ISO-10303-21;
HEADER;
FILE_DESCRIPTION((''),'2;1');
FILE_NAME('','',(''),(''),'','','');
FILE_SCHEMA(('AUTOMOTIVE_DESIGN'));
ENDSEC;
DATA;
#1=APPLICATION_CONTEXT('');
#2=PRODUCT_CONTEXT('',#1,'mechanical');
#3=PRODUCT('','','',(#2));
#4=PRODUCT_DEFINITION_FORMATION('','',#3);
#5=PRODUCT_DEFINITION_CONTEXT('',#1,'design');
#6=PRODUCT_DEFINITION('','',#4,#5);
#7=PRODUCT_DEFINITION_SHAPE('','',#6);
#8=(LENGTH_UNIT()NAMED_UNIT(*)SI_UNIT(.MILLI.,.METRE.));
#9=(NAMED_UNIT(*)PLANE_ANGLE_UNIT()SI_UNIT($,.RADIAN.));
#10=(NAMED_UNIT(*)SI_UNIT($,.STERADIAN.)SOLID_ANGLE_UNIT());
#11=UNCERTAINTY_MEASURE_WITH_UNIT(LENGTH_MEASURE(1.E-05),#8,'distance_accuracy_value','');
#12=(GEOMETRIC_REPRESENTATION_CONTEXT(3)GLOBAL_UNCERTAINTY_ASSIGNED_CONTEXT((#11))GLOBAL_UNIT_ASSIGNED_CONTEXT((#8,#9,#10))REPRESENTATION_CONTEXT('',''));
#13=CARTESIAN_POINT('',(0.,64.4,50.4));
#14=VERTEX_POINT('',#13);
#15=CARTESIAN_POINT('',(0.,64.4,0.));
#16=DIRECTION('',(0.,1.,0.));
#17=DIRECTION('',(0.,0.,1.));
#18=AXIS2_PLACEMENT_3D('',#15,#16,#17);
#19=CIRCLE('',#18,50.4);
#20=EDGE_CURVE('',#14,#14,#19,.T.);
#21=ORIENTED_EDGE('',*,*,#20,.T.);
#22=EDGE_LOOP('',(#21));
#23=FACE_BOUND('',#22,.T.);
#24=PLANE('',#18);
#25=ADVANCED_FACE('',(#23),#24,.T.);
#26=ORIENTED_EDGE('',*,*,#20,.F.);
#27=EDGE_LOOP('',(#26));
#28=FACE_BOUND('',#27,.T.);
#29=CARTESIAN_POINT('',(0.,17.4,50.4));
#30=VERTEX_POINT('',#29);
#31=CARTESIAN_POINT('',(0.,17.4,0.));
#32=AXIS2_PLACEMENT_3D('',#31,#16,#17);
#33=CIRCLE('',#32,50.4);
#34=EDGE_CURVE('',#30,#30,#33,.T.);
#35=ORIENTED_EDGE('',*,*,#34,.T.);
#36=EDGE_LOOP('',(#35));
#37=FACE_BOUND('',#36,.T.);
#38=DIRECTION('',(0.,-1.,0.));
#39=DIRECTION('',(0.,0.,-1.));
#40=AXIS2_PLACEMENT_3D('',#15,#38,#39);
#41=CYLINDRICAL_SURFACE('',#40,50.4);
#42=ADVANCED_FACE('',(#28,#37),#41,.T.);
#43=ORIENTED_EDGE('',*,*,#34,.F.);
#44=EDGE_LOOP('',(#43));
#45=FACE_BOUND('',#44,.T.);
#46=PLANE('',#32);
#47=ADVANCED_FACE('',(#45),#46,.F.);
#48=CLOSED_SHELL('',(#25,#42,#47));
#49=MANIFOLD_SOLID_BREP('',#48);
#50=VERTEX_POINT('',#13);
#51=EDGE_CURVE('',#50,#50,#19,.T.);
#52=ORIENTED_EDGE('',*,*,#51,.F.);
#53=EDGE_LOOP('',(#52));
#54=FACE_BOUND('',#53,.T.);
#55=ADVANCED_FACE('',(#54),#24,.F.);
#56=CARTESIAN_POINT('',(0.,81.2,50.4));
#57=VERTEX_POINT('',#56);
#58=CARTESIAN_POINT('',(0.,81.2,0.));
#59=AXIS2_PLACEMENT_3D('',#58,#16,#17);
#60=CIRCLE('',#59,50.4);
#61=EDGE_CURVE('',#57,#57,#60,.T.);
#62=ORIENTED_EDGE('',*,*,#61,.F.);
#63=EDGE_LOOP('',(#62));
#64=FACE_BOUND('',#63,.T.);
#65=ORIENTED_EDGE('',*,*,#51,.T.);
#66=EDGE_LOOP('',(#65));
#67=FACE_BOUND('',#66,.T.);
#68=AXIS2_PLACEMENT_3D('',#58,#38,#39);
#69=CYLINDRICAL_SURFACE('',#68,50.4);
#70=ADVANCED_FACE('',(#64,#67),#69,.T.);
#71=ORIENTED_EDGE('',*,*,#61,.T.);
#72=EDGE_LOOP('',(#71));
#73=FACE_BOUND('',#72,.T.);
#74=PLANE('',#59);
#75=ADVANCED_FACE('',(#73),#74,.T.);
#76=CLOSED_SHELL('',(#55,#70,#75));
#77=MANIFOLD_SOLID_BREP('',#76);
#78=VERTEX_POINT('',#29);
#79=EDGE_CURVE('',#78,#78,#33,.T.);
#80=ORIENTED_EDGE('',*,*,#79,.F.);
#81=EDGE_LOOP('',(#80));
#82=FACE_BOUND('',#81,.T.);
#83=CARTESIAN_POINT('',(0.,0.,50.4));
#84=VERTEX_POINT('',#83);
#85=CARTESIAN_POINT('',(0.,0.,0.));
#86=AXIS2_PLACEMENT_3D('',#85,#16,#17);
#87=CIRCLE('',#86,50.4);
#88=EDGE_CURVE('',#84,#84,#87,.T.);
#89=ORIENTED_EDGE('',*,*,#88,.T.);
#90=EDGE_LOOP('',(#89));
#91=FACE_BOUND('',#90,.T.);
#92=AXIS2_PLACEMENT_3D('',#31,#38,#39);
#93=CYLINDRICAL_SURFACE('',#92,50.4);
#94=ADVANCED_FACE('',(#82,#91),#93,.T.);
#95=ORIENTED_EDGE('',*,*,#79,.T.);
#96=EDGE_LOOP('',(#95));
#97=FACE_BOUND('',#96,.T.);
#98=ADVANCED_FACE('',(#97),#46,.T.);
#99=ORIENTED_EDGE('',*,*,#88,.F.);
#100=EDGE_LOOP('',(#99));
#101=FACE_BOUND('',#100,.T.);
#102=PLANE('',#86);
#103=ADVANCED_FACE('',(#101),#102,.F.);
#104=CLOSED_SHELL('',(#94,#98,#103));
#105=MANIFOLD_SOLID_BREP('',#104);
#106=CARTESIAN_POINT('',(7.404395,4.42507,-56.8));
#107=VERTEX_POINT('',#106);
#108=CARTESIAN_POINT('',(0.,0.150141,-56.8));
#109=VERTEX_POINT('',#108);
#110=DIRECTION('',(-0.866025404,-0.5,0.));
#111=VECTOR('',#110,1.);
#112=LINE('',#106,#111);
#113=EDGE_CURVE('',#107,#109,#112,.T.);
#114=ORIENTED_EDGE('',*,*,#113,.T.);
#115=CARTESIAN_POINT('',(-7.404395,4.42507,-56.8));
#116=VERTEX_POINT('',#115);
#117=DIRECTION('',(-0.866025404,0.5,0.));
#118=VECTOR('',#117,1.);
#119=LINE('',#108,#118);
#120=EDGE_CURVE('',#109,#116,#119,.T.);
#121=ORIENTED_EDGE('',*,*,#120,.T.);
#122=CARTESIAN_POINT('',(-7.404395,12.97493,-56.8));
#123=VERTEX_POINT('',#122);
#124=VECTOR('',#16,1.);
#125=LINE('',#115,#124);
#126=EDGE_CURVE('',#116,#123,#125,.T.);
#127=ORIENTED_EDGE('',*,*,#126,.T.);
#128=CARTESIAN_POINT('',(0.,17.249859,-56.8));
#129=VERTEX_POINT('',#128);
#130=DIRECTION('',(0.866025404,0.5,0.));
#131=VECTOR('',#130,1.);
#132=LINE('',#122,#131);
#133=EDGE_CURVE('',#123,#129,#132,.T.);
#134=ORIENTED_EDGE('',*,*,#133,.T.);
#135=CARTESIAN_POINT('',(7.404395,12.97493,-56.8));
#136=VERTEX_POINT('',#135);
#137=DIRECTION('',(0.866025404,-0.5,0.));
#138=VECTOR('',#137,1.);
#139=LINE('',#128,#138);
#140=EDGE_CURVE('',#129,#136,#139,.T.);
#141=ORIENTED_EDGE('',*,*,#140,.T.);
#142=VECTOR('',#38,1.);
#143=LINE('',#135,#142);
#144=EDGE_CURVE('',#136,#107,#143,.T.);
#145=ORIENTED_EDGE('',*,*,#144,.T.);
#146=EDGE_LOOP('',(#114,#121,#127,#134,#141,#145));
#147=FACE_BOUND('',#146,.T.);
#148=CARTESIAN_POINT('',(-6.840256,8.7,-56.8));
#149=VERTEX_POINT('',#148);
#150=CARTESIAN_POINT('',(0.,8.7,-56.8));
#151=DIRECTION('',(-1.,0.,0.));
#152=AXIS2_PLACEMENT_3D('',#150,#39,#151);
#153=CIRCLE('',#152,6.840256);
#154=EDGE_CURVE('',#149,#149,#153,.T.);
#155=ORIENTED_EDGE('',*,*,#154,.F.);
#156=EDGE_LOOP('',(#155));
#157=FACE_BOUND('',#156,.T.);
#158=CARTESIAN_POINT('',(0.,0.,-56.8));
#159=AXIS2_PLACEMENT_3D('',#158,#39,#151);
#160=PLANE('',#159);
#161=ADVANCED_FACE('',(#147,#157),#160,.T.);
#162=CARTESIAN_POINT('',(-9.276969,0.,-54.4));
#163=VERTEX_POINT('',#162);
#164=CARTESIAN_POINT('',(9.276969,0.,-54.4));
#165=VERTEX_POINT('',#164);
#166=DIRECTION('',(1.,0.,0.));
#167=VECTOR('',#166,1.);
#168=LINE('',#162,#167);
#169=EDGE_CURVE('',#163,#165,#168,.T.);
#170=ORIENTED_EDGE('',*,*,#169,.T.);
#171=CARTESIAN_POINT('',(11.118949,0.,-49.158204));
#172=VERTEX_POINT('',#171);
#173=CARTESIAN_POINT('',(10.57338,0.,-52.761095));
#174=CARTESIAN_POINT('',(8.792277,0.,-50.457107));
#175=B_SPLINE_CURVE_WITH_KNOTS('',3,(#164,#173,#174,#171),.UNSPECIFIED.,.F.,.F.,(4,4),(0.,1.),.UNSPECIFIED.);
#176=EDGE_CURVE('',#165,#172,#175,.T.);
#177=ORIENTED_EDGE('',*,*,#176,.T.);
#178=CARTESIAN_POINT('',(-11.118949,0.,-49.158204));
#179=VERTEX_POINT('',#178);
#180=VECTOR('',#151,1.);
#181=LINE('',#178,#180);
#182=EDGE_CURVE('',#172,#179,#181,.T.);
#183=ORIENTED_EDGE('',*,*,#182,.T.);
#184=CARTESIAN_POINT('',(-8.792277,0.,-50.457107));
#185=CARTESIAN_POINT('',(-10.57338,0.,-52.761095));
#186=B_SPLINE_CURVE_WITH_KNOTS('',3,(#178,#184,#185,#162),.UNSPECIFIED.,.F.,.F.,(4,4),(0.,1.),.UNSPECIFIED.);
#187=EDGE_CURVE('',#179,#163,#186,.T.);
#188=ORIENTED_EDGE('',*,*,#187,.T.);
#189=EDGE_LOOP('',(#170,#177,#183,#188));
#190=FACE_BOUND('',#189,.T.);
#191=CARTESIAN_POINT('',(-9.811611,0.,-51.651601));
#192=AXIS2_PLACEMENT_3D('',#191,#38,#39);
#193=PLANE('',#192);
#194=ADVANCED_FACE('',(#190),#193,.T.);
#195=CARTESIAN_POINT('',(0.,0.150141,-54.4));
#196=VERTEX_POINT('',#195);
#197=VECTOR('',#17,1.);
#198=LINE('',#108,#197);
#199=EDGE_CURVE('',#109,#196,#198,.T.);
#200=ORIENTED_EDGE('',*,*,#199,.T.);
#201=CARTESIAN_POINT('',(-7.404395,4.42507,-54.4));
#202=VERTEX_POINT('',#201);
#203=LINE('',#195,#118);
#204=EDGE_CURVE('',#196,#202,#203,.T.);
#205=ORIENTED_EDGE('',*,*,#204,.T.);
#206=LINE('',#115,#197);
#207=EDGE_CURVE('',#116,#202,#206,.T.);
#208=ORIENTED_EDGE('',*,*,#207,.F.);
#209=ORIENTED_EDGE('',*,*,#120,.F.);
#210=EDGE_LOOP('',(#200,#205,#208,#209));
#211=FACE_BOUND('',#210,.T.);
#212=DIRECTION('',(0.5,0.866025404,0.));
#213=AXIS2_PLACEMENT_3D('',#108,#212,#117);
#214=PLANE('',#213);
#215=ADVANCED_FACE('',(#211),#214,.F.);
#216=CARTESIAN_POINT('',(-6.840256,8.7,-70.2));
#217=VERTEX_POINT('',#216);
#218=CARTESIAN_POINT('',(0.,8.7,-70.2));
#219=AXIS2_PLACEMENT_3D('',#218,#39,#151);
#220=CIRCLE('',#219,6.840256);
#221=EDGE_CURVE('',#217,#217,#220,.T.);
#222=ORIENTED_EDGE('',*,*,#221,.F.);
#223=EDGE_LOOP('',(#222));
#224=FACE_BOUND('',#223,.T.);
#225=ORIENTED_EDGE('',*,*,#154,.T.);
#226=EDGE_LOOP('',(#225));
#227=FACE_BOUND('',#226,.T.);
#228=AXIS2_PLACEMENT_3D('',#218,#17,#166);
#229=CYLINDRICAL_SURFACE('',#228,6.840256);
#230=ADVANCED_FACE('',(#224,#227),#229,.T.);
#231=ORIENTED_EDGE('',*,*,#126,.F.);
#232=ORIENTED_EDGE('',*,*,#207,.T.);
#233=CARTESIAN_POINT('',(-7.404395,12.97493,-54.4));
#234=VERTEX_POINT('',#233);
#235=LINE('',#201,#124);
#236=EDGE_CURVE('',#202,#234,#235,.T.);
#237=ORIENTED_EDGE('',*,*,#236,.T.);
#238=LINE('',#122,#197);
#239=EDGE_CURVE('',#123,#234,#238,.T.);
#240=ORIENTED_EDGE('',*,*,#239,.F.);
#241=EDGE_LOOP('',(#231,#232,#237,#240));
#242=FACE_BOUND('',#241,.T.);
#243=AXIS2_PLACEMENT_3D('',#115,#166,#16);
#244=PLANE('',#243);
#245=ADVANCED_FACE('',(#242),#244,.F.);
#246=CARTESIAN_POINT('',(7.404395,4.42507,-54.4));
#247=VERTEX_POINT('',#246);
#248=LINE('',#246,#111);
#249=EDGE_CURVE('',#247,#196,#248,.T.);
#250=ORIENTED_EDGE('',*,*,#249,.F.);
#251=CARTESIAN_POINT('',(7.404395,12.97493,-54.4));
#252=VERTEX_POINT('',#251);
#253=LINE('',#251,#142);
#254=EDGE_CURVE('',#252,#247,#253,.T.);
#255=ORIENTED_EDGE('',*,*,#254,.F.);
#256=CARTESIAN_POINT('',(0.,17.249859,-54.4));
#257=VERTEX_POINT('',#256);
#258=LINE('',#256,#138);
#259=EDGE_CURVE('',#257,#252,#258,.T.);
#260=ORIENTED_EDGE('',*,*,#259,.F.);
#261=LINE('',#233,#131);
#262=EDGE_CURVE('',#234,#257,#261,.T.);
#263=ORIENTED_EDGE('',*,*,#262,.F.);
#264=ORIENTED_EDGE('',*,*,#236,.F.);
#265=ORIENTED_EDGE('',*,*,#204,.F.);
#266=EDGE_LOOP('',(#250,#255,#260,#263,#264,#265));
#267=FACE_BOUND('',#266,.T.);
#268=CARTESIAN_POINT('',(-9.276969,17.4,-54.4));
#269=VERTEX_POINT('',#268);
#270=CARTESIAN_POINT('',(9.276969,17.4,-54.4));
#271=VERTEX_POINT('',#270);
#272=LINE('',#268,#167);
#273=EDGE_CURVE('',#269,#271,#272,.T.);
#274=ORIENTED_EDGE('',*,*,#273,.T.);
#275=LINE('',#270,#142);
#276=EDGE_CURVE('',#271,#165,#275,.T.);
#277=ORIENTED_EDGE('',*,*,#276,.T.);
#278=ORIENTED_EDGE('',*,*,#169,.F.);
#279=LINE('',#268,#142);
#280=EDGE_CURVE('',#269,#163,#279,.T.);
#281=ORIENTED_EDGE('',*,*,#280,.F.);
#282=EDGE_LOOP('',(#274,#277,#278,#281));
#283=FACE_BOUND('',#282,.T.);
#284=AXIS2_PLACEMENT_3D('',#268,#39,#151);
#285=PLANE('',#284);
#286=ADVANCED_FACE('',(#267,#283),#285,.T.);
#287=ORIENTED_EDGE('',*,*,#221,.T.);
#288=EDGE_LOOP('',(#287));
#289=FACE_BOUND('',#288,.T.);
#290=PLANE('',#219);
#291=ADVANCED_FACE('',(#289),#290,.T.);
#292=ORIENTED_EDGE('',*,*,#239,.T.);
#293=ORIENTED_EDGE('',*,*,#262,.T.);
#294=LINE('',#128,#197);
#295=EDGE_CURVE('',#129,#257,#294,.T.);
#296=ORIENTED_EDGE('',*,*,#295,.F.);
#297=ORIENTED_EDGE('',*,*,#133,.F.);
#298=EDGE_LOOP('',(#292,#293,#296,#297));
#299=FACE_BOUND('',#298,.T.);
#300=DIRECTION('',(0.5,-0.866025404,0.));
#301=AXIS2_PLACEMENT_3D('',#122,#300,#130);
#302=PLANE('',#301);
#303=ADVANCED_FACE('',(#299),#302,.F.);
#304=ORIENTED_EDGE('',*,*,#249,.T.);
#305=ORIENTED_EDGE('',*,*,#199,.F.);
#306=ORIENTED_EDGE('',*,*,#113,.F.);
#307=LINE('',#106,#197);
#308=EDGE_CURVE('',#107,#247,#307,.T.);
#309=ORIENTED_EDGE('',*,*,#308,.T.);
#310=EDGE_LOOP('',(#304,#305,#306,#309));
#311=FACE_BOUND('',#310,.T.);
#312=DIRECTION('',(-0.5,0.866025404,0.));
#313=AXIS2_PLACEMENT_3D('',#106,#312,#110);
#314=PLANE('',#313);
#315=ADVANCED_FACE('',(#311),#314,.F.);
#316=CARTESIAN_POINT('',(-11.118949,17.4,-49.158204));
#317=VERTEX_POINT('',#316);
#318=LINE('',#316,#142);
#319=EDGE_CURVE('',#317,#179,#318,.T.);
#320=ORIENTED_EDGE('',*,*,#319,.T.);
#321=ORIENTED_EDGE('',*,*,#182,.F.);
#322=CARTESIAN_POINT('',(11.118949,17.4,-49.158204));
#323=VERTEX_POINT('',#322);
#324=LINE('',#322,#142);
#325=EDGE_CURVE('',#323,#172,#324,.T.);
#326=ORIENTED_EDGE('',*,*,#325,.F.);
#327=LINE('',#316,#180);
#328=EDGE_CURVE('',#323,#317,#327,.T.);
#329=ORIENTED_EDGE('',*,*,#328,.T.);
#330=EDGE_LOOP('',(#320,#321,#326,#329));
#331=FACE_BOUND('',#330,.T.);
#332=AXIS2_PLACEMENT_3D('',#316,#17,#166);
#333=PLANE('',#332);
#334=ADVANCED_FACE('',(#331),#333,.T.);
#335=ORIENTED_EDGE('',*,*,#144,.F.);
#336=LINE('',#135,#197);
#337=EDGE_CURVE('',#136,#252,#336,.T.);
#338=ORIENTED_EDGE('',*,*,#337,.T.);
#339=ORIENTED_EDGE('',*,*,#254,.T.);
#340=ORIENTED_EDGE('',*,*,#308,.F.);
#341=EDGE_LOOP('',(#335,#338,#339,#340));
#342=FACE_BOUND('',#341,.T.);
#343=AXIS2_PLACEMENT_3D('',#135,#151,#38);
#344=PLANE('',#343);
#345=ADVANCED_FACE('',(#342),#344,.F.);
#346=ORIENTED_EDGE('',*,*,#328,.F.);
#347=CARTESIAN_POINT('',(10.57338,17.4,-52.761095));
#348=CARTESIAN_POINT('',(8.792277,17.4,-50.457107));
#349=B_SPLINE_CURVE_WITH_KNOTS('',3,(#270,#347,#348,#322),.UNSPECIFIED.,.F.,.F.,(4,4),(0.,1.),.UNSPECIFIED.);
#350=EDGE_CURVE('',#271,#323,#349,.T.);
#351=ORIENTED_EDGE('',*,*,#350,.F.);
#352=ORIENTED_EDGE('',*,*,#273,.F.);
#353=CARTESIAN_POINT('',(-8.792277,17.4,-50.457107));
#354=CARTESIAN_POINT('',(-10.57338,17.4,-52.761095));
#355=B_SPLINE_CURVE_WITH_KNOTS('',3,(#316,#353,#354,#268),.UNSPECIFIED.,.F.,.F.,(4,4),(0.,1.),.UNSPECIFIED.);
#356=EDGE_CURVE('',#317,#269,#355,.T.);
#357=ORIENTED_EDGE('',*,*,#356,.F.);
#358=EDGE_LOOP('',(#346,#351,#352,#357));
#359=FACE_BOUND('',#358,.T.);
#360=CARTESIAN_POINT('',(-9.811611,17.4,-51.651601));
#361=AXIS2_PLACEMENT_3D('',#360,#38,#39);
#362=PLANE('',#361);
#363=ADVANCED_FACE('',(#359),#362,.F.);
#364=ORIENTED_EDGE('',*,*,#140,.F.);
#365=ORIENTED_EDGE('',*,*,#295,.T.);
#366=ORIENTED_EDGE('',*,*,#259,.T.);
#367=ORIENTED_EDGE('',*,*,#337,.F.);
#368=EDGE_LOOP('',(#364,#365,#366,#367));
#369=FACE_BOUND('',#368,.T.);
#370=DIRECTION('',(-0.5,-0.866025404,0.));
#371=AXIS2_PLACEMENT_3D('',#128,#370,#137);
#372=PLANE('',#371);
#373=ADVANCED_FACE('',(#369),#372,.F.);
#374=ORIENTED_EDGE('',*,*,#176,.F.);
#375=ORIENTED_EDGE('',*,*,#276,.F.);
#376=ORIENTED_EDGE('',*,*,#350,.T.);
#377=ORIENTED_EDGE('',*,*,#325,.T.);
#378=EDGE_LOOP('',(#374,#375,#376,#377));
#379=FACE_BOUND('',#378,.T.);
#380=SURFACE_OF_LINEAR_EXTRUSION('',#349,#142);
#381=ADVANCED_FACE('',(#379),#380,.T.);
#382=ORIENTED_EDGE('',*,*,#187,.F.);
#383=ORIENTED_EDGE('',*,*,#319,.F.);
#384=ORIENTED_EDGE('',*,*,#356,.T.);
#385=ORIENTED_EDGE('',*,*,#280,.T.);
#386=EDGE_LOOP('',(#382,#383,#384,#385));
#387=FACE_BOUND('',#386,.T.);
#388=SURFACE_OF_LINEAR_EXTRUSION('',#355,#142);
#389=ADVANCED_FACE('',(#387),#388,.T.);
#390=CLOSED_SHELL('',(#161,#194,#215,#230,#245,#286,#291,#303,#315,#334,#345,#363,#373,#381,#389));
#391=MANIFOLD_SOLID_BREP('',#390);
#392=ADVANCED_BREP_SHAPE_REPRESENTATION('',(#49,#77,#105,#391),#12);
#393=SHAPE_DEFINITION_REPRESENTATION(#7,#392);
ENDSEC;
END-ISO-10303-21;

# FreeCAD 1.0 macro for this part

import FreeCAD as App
import Part
import Sketcher

V = App.Vector
Q = App.Units.Quantity


def add_polygon(sketch, points):
    """Adds a closed chain of lines whose ends are joined by coincident constraints."""
    first, n = sketch.GeometryCount, len(points)
    for a, b in zip(points, points[1:] + points[:1]):
        sketch.addGeometry(Part.LineSegment(App.Vector(*a, 0), App.Vector(*b, 0)), False)
    for i in range(n):
        sketch.addConstraint(Sketcher.Constraint("Coincident", first + i, 2, first + (i + 1) % n, 1))

doc = App.newDocument("Part")
body = doc.addObject("PartDesign::Body", "Body")

# Sketch on XZ plane
sketch1 = body.newObject("Sketcher::SketchObject", "Sketch")
sketch1.AttachmentSupport = (doc.getObject("XZ_Plane"), [""])
sketch1.MapMode = "FlatFace"
sketch1.addGeometry(Part.Circle(V(0, 0, 0), V(0, 0, 1), 50.4), False)
sketch1.addConstraint(Sketcher.Constraint("Coincident", 0, 3, -1, 1))
sketch1.addConstraint(Sketcher.Constraint("Diameter", 0, 100.8))
pad1 = body.newObject("PartDesign::Pad", "Pad")
pad1.Profile = sketch1
pad1.Length = 17.4
pad1.Reversed = True
body2 = doc.addObject("PartDesign::Body", "Body001")

# Sketch on XZ plane
sketch2 = body2.newObject("Sketcher::SketchObject", "Sketch001")
sketch2.AttachmentSupport = (doc.getObject("XZ_Plane001"), [""])
sketch2.MapMode = "FlatFace"
sketch2.AttachmentOffset = App.Placement(V(0, 0, -17.4), App.Rotation())
sketch2.addGeometry(Part.Circle(V(0, 0, 0), V(0, 0, 1), 50.4), False)
sketch2.addConstraint(Sketcher.Constraint("Coincident", 0, 3, -1, 1))
sketch2.addConstraint(Sketcher.Constraint("Diameter", 0, 100.8))
pad2 = body2.newObject("PartDesign::Pad", "Pad001")
pad2.Profile = sketch2
pad2.Length = 47
pad2.Reversed = True
body3 = doc.addObject("PartDesign::Body", "Body002")

# Sketch on XZ plane
sketch3 = body3.newObject("Sketcher::SketchObject", "Sketch002")
sketch3.AttachmentSupport = (doc.getObject("XZ_Plane002"), [""])
sketch3.MapMode = "FlatFace"
sketch3.AttachmentOffset = App.Placement(V(0, 0, -64.4), App.Rotation())
sketch3.addGeometry(Part.Circle(V(0, 0, 0), V(0, 0, 1), 50.4), False)
sketch3.addConstraint(Sketcher.Constraint("Coincident", 0, 3, -1, 1))
sketch3.addConstraint(Sketcher.Constraint("Diameter", 0, 100.8))
pad3 = body3.newObject("PartDesign::Pad", "Pad002")
pad3.Profile = sketch3
pad3.Length = 16.8
pad3.Reversed = True
body4 = doc.addObject("PartDesign::Body", "Body003")

# Sketch on XZ plane
sketch4 = body4.newObject("Sketcher::SketchObject", "Sketch003")
sketch4.AttachmentSupport = (doc.getObject("XZ_Plane003"), [""])
sketch4.MapMode = "FlatFace"
sketch4.addGeometry(Part.LineSegment(V(-9.276969, -54.4, 0), V(9.276969, -54.4, 0)), False)
sketch4.addGeometry(Part.BSplineCurve([V(11.118949, -49.158204, 0), V(8.792277, -50.457107, 0), V(10.57338, -52.761095, 0), V(9.276969, -54.4, 0)], [4, 4], [0, 1], False, 3, [1, 1, 1, 1], False), False)
sketch4.addGeometry(Part.LineSegment(V(11.118949, -49.158204, 0), V(-11.118949, -49.158204, 0)), False)
sketch4.addGeometry(Part.BSplineCurve([V(-11.118949, -49.158204, 0), V(-8.792277, -50.457107, 0), V(-10.57338, -52.761095, 0), V(-9.276969, -54.4, 0)], [4, 4], [0, 1], False, 3, [1, 1, 1, 1], False), False)
sketch4.addConstraint(Sketcher.Constraint("Block", 1))
sketch4.addConstraint(Sketcher.Constraint("Block", 3))
sketch4.addConstraint(Sketcher.Constraint("Coincident", 0, 2, 1, 2))
sketch4.addConstraint(Sketcher.Constraint("Coincident", 1, 1, 2, 1))
sketch4.addConstraint(Sketcher.Constraint("Coincident", 2, 2, 3, 1))
sketch4.addConstraint(Sketcher.Constraint("Coincident", 3, 2, 0, 1))
pad4 = body4.newObject("PartDesign::Pad", "Pad003")
pad4.Profile = sketch4
pad4.Length = 17.4
pad4.Reversed = True

# Sketch on XY plane
sketch5 = body4.newObject("Sketcher::SketchObject", "Sketch004")
sketch5.AttachmentSupport = (doc.getObject("XY_Plane003"), [""])
sketch5.MapMode = "FlatFace"
sketch5.AttachmentOffset = App.Placement(V(0, 0, -54.4), App.Rotation())
add_polygon(sketch5, [(0, 17.249859), (7.404395, 12.97493), (7.404395, 4.42507), (0, 0.150141), (-7.404395, 4.42507), (-7.404395, 12.97493)])  # lines 0-5
sketch5.addConstraint(Sketcher.Constraint("Vertical", 1))
sketch5.addConstraint(Sketcher.Constraint("Vertical", 4))
sketch5.addConstraint(Sketcher.Constraint("Symmetric", 1, 2, 3, 2, -2))
sketch5.addConstraint(Sketcher.Constraint("PointOnObject", 2, 2, -2))
sketch5.addConstraint(Sketcher.Constraint("PointOnObject", 5, 2, -2))
sketch5.addConstraint(Sketcher.Constraint("Parallel", 0, 3))
sketch5.addConstraint(Sketcher.Constraint("Parallel", 2, 5))
sketch5.addConstraint(Sketcher.Constraint("Angle", 0, Q("-30 deg")))
sketch5.addConstraint(Sketcher.Constraint("DistanceY", 1, 2, 1, 1, 8.549859))
sketch5.addConstraint(Sketcher.Constraint("Distance", 0, 8.549859))
sketch5.addConstraint(Sketcher.Constraint("DistanceY", -1, 1, 0, 2, 12.97493))
pad5 = body4.newObject("PartDesign::Pad", "Pad004")
pad5.Profile = sketch5
pad5.Length = 2.4
pad5.Reversed = True

# Sketch on XY plane
sketch6 = body4.newObject("Sketcher::SketchObject", "Sketch005")
sketch6.AttachmentSupport = (doc.getObject("XY_Plane003"), [""])
sketch6.MapMode = "FlatFace"
sketch6.AttachmentOffset = App.Placement(V(0, 0, -56.8), App.Rotation())
sketch6.addGeometry(Part.Circle(V(0, 8.7, 0), V(0, 0, 1), 6.840256), False)
sketch6.addConstraint(Sketcher.Constraint("PointOnObject", 0, 3, -2))
sketch6.addConstraint(Sketcher.Constraint("DistanceY", -1, 1, 0, 3, 8.7))
sketch6.addConstraint(Sketcher.Constraint("Diameter", 0, 13.680512))
pad6 = body4.newObject("PartDesign::Pad", "Pad005")
pad6.Profile = sketch6
pad6.Length = 13.4
pad6.Reversed = True

doc.recompute()
